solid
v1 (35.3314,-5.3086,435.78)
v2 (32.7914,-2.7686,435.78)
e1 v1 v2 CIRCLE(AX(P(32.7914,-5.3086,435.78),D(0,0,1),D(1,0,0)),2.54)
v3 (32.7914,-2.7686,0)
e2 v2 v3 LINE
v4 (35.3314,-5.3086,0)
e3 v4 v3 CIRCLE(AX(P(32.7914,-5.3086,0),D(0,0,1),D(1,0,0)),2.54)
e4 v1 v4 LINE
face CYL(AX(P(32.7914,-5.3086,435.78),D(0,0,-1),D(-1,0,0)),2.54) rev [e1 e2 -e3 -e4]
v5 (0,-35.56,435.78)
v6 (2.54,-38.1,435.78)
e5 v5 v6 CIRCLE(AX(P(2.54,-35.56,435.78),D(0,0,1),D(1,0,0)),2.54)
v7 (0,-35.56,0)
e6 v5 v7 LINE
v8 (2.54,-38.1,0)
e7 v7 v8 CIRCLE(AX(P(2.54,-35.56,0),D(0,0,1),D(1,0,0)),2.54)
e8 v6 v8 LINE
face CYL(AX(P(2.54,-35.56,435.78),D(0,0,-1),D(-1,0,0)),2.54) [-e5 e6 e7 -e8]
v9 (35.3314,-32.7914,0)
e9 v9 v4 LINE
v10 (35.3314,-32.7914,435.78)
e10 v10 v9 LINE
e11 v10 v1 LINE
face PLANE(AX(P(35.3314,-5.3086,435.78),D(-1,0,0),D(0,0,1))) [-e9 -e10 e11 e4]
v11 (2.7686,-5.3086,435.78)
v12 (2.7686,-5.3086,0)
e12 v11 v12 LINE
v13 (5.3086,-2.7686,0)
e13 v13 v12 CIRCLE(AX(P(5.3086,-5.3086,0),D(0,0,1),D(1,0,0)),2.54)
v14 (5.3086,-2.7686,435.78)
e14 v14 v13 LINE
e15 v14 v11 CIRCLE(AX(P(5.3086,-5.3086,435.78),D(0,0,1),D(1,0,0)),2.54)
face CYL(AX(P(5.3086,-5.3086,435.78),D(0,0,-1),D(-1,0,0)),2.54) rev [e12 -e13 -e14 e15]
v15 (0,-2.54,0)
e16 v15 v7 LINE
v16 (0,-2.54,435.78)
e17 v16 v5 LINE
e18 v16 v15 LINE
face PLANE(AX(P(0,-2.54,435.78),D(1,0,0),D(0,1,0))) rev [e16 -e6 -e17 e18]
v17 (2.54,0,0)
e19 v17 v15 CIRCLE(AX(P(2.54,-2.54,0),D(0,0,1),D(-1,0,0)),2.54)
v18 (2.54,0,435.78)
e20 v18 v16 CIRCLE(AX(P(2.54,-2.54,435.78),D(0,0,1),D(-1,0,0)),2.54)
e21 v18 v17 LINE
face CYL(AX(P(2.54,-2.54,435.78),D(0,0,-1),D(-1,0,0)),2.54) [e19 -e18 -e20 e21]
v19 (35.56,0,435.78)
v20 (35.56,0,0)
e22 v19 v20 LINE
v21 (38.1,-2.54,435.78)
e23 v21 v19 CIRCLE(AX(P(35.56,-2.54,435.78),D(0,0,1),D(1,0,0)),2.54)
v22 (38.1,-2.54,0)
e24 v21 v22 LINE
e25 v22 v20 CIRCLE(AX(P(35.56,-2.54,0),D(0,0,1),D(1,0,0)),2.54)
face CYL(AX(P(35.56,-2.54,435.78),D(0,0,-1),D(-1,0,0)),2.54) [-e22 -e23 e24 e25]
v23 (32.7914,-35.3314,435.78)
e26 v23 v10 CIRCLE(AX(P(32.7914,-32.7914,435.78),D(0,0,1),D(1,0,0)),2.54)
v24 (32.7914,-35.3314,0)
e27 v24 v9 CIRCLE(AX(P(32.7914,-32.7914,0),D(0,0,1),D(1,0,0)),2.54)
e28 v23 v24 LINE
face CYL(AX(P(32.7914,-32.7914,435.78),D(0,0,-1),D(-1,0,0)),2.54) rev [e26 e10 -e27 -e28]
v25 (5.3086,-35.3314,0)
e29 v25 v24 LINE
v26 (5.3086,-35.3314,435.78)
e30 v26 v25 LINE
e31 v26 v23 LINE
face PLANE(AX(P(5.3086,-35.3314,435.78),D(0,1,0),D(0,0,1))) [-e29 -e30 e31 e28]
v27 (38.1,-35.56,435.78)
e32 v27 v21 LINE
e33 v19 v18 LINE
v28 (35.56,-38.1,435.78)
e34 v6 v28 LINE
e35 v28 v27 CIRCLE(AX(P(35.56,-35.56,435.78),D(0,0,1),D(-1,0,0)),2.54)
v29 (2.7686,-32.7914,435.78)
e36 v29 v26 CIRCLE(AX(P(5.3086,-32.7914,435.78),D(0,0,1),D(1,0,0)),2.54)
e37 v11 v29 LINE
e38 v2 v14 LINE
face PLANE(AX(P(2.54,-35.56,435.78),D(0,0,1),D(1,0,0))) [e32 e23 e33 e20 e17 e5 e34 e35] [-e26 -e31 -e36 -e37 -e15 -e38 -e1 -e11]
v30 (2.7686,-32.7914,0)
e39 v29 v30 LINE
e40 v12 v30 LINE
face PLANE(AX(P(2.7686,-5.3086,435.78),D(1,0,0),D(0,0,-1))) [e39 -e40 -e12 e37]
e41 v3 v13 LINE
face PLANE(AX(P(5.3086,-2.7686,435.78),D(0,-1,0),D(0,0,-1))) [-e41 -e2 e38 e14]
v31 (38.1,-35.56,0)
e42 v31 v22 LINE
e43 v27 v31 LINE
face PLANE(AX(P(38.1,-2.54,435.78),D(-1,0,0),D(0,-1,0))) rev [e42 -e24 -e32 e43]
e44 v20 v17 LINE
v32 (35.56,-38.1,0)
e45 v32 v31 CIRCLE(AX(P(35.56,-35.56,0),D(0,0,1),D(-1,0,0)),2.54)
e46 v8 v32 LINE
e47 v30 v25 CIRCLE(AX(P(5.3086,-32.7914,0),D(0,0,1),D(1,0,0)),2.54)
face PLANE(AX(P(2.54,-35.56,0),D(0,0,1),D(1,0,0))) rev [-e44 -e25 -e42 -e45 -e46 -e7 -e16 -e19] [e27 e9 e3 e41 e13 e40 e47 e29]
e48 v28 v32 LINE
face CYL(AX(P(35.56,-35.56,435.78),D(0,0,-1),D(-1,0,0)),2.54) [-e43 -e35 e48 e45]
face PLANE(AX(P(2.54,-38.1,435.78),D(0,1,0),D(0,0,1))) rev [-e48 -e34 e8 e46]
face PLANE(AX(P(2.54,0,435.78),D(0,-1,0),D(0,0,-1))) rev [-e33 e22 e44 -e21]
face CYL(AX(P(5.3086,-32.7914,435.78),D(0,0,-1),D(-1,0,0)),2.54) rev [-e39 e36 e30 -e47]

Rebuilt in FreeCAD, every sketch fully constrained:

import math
import FreeCAD as App
import Part
import Sketcher
Q = App.Units.Quantity

doc = App.newDocument("Part")
body = doc.addObject("PartDesign::Body", "Body")

# Sketch on XY plane
sketch1 = doc.addObject("Sketcher::SketchObject", "Sketch")
body.addObject(sketch1)
sketch1.AttachmentSupport = (doc.XY_Plane, [""])
sketch1.MapMode = "FlatFace"
sketch1.addGeometry([
    Part.LineSegment(App.Vector(35.6, 0, 0), App.Vector(2.5, 0, 0)),  # 0
    Part.ArcOfCircle(Part.Circle(App.Vector(2.5, -2.5, 0), App.Vector(0, 0, 1), 2.5), math.radians(90), math.radians(180)),  # 1
    Part.LineSegment(App.Vector(0, -2.5, 0), App.Vector(0, -35.6, 0)),  # 2
    Part.ArcOfCircle(Part.Circle(App.Vector(2.5, -35.6, 0), App.Vector(0, 0, 1), 2.5), math.radians(-180), math.radians(-90)),  # 3
    Part.LineSegment(App.Vector(2.5, -38.1, 0), App.Vector(35.6, -38.1, 0)),  # 4
    Part.ArcOfCircle(Part.Circle(App.Vector(35.6, -35.6, 0), App.Vector(0, 0, 1), 2.5), math.radians(-90), math.radians(0)),  # 5
    Part.LineSegment(App.Vector(38.1, -35.6, 0), App.Vector(38.1, -2.5, 0)),  # 6
    Part.ArcOfCircle(Part.Circle(App.Vector(35.6, -2.5, 0), App.Vector(0, 0, 1), 2.5), math.radians(0), math.radians(90)),  # 7
    Part.LineSegment(App.Vector(5.3, -2.8, 0), App.Vector(32.8, -2.8, 0)),  # 8
    Part.ArcOfCircle(Part.Circle(App.Vector(32.8, -5.3, 0), App.Vector(0, 0, 1), 2.5), math.radians(0), math.radians(90)),  # 9
    Part.LineSegment(App.Vector(35.3, -5.3, 0), App.Vector(35.3, -32.8, 0)),  # 10
    Part.ArcOfCircle(Part.Circle(App.Vector(32.8, -32.8, 0), App.Vector(0, 0, 1), 2.5), math.radians(-90), math.radians(0)),  # 11
    Part.LineSegment(App.Vector(32.8, -35.3, 0), App.Vector(5.3, -35.3, 0)),  # 12
    Part.ArcOfCircle(Part.Circle(App.Vector(5.3, -32.8, 0), App.Vector(0, 0, 1), 2.5), math.radians(-180), math.radians(-90)),  # 13
    Part.LineSegment(App.Vector(2.8, -32.8, 0), App.Vector(2.8, -5.3, 0)),  # 14
    Part.ArcOfCircle(Part.Circle(App.Vector(5.3, -5.3, 0), App.Vector(0, 0, 1), 2.5), math.radians(90), math.radians(180)),  # 15
], False)
sketch1.addConstraint([
    Sketcher.Constraint("Tangent", 0, 2, 1, 1),
    Sketcher.Constraint("Tangent", 1, 2, 2, 1),
    Sketcher.Constraint("Tangent", 2, 2, 3, 1),
    Sketcher.Constraint("Tangent", 3, 2, 4, 1),
    Sketcher.Constraint("Tangent", 4, 2, 5, 1),
    Sketcher.Constraint("Tangent", 5, 2, 6, 1),
    Sketcher.Constraint("Tangent", 6, 2, 7, 1),
    Sketcher.Constraint("Tangent", 7, 2, 0, 1),
    Sketcher.Constraint("Tangent", 8, 2, 9, 2),
    Sketcher.Constraint("Tangent", 9, 1, 10, 1),
    Sketcher.Constraint("Tangent", 10, 2, 11, 2),
    Sketcher.Constraint("Tangent", 11, 1, 12, 1),
    Sketcher.Constraint("Tangent", 12, 2, 13, 2),
    Sketcher.Constraint("Tangent", 13, 1, 14, 1),
    Sketcher.Constraint("Tangent", 14, 2, 15, 2),
    Sketcher.Constraint("Tangent", 15, 1, 8, 1),
    Sketcher.Constraint("Horizontal", 0),
    Sketcher.Constraint("Vertical", 2),
    Sketcher.Constraint("Horizontal", 4),
    Sketcher.Constraint("Vertical", 6),
    Sketcher.Constraint("Horizontal", 8),
    Sketcher.Constraint("Vertical", 10),
    Sketcher.Constraint("Horizontal", 12),
    Sketcher.Constraint("Vertical", 14),
    Sketcher.Constraint("Equal", 1, 3),
    Sketcher.Constraint("Equal", 3, 5),
    Sketcher.Constraint("Equal", 5, 7),
    Sketcher.Constraint("Equal", 7, 9),
    Sketcher.Constraint("Equal", 9, 11),
    Sketcher.Constraint("Equal", 11, 13),
    Sketcher.Constraint("Equal", 13, 15),
    Sketcher.Constraint("PointOnObject", 0, 2, -1),
    Sketcher.Constraint("PointOnObject", 1, 2, -2),
    Sketcher.Constraint("Equal", 4, 2),
    Sketcher.Constraint("Equal", 12, 10),
    Sketcher.Constraint("Radius", 1, Q("0.1 in")),
    Sketcher.Constraint("DistanceX", 0, 2, 0, 1, Q("1.3 in")),
    Sketcher.Constraint("DistanceX", 8, 1, 8, 2, Q("1.082 in")),
    Sketcher.Constraint("DistanceX", -1, 1, 9, 3, Q("1.291 in")),
    Sketcher.Constraint("DistanceY", 9, 3, -1, 1, Q("0.209 in")),
])
pad1 = doc.addObject("PartDesign::Pad", "Pad")
body.addObject(pad1)
pad1.Profile = sketch1
pad1.Length = 435.78

doc.recompute()
